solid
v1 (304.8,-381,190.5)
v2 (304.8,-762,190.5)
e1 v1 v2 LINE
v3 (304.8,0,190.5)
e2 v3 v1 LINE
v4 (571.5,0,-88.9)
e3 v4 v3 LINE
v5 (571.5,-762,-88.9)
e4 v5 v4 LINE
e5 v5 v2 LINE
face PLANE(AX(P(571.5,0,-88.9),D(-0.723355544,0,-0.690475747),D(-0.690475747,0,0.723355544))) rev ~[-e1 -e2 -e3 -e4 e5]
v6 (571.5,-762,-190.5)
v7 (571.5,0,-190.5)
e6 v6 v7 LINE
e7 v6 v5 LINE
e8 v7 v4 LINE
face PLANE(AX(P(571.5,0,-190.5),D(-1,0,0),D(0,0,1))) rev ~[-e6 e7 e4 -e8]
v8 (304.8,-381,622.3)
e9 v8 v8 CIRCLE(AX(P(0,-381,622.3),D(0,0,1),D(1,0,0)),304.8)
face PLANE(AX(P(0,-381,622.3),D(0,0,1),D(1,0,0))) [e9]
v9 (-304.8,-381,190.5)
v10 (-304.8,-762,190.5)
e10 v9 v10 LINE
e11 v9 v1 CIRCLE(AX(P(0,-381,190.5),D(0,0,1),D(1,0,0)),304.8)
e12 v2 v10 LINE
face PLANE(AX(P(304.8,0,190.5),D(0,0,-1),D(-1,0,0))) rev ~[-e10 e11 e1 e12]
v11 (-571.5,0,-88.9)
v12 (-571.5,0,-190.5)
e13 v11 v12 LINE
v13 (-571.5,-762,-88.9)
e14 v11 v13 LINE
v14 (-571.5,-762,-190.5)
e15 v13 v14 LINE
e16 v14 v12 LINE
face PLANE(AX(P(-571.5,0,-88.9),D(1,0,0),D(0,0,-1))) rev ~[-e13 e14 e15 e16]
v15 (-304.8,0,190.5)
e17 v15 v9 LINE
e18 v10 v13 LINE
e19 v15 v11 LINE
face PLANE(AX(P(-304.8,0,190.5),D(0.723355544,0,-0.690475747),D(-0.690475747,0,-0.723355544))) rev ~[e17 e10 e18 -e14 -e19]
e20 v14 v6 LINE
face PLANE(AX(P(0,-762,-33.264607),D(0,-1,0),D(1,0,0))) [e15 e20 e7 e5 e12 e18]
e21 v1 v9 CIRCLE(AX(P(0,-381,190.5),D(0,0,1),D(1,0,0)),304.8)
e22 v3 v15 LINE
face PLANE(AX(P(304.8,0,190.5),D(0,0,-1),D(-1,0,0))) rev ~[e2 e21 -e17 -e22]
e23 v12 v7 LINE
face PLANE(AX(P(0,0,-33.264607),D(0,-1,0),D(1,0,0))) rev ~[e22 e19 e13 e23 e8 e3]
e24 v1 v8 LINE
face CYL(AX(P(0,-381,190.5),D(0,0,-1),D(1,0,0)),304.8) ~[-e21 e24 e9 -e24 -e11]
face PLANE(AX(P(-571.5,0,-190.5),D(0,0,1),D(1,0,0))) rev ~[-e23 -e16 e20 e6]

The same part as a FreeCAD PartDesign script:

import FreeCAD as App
import Part
import Sketcher
from FreeCAD import Vector
Q = App.Units.Quantity


def add_polygon(sketch, points):
    """Adds a closed chain of lines whose ends are joined by coincident constraints."""
    first, n = sketch.GeometryCount, len(points)
    for a, b in zip(points, points[1:] + points[:1]):
        sketch.addGeometry(Part.LineSegment(App.Vector(*a, 0), App.Vector(*b, 0)), False)
    for i in range(n):
        sketch.addConstraint(Sketcher.Constraint("Coincident", first + i, 2, first + (i + 1) % n, 1))

doc = App.newDocument("Part")
params = doc.addObject("Spreadsheet::Sheet", "Params")
for row, (alias, value) in enumerate([
    ("sketch1_width", "24 in"),
    ("sketch1_width2", "45 in"),
    ("sketch1_height", "4 in"),
    ("pad1_length", "1 in"),
    ("sketch2_width", "24 in"),
    ("sketch2_width2", "45 in"),
    ("sketch2_height", "4 in"),
    ("pad2_length", "30 in"),
    ("sketch3_diameter", "24 in"),
    ("pad3_length", "17 in"),
], start=1):
    params.set(f"A{row}", alias)
    params.set(f"B{row}", "=" + value)
    params.setAlias(f"B{row}", alias)

body = doc.addObject("PartDesign::Body", "Body")

sketch1 = body.newObject("Sketcher::SketchObject", "Sketch")
sketch1.AttachmentSupport = (doc.getObject("XZ_Plane"), [""])
sketch1.MapMode = "FlatFace"
add_polygon(sketch1, [(572, -89), (305, 190), (-305, 190), (-572, -89), (-572, -190), (572, -190)])
sketch1.addConstraint(Sketcher.Constraint("Horizontal", 1))
sketch1.addConstraint(Sketcher.Constraint("Vertical", 3))
sketch1.addConstraint(Sketcher.Constraint("Horizontal", 4))
sketch1.addConstraint(Sketcher.Constraint("Vertical", 5))
sketch1.addConstraint(Sketcher.Constraint("Symmetric", 2, 2, 5, 2, -2))
sketch1.addConstraint(Sketcher.Constraint("Equal", 0, 2))
sketch1.addConstraint(Sketcher.Constraint("DistanceX", 1, 2, 1, 1, Q("24 in")))
sketch1.addConstraint(Sketcher.Constraint("DistanceX", 4, 1, 4, 2, Q("45 in")))
sketch1.addConstraint(Sketcher.Constraint("DistanceY", 3, 2, 3, 1, Q("4 in")))
sketch1.addConstraint(Sketcher.Constraint("DistanceY", 2, 2, 1, 2, Q("11 in")))
sketch1.addConstraint(Sketcher.Constraint("DistanceY", -1, 1, 0, 2, Q("7.5 in")))
sketch1.setExpression("Constraints[12]", "Params.sketch1_width")
sketch1.setExpression("Constraints[13]", "Params.sketch1_width2")
sketch1.setExpression("Constraints[14]", "Params.sketch1_height")
pad1 = body.newObject("PartDesign::Pad", "Pad")
pad1.Profile = sketch1
pad1.setExpression("Length", "Params.pad1_length")

sketch2 = body.newObject("Sketcher::SketchObject", "Sketch001")
sketch2.AttachmentSupport = (doc.getObject("XZ_Plane"), [""])
sketch2.MapMode = "FlatFace"
add_polygon(sketch2, [(572, -89), (305, 190), (-305, 190), (-572, -89), (-572, -190), (572, -190)])
sketch2.addConstraint(Sketcher.Constraint("Horizontal", 1))
sketch2.addConstraint(Sketcher.Constraint("Vertical", 3))
sketch2.addConstraint(Sketcher.Constraint("Horizontal", 4))
sketch2.addConstraint(Sketcher.Constraint("Vertical", 5))
sketch2.addConstraint(Sketcher.Constraint("Symmetric", 2, 2, 5, 2, -2))
sketch2.addConstraint(Sketcher.Constraint("Equal", 0, 2))
sketch2.addConstraint(Sketcher.Constraint("DistanceX", 1, 2, 1, 1, Q("24 in")))
sketch2.addConstraint(Sketcher.Constraint("DistanceX", 4, 1, 4, 2, Q("45 in")))
sketch2.addConstraint(Sketcher.Constraint("DistanceY", 3, 2, 3, 1, Q("4 in")))
sketch2.addConstraint(Sketcher.Constraint("DistanceY", 2, 2, 1, 2, Q("11 in")))
sketch2.addConstraint(Sketcher.Constraint("DistanceY", -1, 1, 0, 2, Q("7.5 in")))
sketch2.setExpression("Constraints[12]", "Params.sketch2_width")
sketch2.setExpression("Constraints[13]", "Params.sketch2_width2")
sketch2.setExpression("Constraints[14]", "Params.sketch2_height")
pad2 = body.newObject("PartDesign::Pad", "Pad001")
pad2.Profile = sketch2
pad2.setExpression("Length", "Params.pad2_length")

sketch3 = body.newObject("Sketcher::SketchObject", "Sketch002")
sketch3.AttachmentSupport = (doc.getObject("XY_Plane"), [""])
sketch3.MapMode = "FlatFace"
sketch3.AttachmentOffset = App.Placement(Vector(0, 0, 7.5 * 25.4), App.Rotation())
sketch3.addGeometry(Part.Circle(Vector(0, -381, 0), Vector(0, 0, 1), 305), False)
sketch3.addConstraint(Sketcher.Constraint("PointOnObject", 0, 3, -2))
sketch3.addConstraint(Sketcher.Constraint("Diameter", 0, Q("24 in")))
sketch3.addConstraint(Sketcher.Constraint("DistanceY", 0, 3, -1, 1, Q("15 in")))
sketch3.setExpression("Constraints[1]", "Params.sketch3_diameter")
pad3 = body.newObject("PartDesign::Pad", "Pad002")
pad3.Profile = sketch3
pad3.setExpression("Length", "Params.pad3_length")

doc.recompute()
